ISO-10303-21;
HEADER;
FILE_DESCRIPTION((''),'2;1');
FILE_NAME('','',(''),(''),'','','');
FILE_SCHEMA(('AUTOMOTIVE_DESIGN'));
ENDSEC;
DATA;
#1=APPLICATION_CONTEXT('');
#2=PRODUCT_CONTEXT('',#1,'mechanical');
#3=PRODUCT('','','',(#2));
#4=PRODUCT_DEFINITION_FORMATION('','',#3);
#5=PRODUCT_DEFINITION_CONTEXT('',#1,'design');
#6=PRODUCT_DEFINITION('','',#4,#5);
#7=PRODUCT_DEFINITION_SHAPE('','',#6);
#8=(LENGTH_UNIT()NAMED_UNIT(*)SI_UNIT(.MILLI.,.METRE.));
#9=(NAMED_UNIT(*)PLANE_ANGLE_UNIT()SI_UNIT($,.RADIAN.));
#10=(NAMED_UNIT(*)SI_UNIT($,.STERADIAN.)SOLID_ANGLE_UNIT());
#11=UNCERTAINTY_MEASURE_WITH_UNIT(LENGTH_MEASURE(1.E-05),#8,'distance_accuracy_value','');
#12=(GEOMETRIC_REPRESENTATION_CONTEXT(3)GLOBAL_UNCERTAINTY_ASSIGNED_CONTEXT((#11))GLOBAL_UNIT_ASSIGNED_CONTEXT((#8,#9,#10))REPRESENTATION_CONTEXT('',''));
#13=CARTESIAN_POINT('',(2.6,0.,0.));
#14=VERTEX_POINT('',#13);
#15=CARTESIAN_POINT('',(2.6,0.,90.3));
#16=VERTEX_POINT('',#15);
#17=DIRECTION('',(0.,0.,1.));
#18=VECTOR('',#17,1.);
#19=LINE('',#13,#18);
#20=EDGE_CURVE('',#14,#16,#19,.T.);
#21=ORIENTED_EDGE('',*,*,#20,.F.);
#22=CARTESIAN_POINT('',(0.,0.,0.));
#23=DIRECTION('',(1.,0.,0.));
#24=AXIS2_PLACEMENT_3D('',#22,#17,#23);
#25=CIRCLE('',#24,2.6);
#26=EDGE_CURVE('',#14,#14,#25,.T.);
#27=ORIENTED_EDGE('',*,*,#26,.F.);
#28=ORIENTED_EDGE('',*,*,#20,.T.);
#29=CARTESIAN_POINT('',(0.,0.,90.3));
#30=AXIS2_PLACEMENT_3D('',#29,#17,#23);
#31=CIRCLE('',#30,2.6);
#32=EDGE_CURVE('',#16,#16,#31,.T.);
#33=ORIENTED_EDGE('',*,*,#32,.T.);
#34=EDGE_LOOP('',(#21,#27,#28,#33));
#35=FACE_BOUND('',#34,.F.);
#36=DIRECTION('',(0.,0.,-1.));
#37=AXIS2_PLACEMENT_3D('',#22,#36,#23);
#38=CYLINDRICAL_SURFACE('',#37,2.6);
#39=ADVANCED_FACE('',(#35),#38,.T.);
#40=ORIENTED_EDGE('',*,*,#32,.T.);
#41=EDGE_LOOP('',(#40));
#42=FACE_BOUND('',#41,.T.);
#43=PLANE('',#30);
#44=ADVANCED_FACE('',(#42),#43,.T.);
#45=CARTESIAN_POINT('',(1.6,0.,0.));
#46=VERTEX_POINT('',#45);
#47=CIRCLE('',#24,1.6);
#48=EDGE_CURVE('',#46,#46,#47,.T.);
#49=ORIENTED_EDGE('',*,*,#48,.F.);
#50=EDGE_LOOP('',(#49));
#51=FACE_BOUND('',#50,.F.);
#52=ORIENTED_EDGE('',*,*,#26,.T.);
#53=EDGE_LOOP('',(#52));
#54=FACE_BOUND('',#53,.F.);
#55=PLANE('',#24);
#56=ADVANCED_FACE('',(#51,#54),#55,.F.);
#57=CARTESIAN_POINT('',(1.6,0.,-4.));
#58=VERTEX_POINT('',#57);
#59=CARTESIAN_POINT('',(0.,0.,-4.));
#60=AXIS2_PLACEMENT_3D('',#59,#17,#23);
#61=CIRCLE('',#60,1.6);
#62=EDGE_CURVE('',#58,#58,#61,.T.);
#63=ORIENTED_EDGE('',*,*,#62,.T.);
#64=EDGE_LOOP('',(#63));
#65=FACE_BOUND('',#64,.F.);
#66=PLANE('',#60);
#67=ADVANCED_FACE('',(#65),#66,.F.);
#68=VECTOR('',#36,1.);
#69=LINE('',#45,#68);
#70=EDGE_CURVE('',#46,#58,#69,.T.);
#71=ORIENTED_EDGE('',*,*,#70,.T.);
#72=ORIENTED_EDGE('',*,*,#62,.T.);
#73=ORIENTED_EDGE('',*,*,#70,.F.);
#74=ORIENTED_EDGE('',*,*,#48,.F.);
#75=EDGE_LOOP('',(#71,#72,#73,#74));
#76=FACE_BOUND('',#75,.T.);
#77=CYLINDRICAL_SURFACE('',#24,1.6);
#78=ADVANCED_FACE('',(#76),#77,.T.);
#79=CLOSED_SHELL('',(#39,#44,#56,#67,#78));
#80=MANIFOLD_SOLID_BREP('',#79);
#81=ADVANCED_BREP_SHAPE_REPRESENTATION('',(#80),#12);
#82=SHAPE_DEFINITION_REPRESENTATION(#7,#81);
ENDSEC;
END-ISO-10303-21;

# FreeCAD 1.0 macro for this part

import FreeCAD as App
import Part
import Sketcher
from FreeCAD import Vector

doc = App.newDocument("Part")
body = doc.addObject("PartDesign::Body", "Body")

sketch1 = doc.addObject("Sketcher::SketchObject", "Sketch")
body.addObject(sketch1)
sketch1.AttachmentSupport = (doc.XY_Plane, [""])
sketch1.MapMode = "FlatFace"
sketch1.addGeometry(Part.Circle(Vector(0, 0, 0), Vector(0, 0, 1), 2.6), False)
sketch1.addConstraint([
    Sketcher.Constraint("Coincident", 0, 3, -1, 1),
    Sketcher.Constraint("Diameter", 0, 5.2),
])
pad1 = doc.addObject("PartDesign::Pad", "Pad")
body.addObject(pad1)
pad1.Profile = sketch1
pad1.Length = 90.3

sketch2 = doc.addObject("Sketcher::SketchObject", "Sketch001")
body.addObject(sketch2)
sketch2.AttachmentSupport = (doc.XY_Plane, [""])
sketch2.MapMode = "FlatFace"
sketch2.addGeometry(Part.Circle(Vector(0, 0, 0), Vector(0, 0, 1), 1.6), False)
sketch2.addConstraint([
    Sketcher.Constraint("Coincident", 0, 3, -1, 1),
    Sketcher.Constraint("Diameter", 0, 3.2),
])
pad2 = doc.addObject("PartDesign::Pad", "Pad001")
body.addObject(pad2)
pad2.Profile = sketch2
pad2.Length = 4
pad2.Reversed = True

doc.recompute()
